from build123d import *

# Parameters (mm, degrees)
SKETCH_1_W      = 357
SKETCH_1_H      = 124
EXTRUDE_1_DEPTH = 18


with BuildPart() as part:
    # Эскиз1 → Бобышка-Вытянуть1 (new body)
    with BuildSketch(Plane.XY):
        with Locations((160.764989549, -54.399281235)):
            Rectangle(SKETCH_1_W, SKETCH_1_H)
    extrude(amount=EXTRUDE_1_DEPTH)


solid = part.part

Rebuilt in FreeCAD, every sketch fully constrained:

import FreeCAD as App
import Part
import Sketcher
Q = App.Units.Quantity


def add_polygon(sketch, points):
    """Adds a closed chain of lines whose ends are joined by coincident constraints."""
    first, n = sketch.GeometryCount, len(points)
    for a, b in zip(points, points[1:] + points[:1]):
        sketch.addGeometry(Part.LineSegment(App.Vector(*a, 0), App.Vector(*b, 0)), False)
    for i in range(n):
        sketch.addConstraint(Sketcher.Constraint("Coincident", first + i, 2, first + (i + 1) % n, 1))

doc = App.newDocument("Part")
params = doc.addObject("Spreadsheet::Sheet", "Params")
for row, (alias, value) in enumerate([
    ("sketch1_width", "357 mm"),
    ("sketch1_height", "124 mm"),
    ("pad1_length", "18 mm"),
], start=1):
    params.set(f"A{row}", alias)
    params.set(f"B{row}", "=" + value)
    params.setAlias(f"B{row}", alias)

body = doc.addObject("PartDesign::Body", "Body")

# Sketch on XY plane
sketch1 = doc.addObject("Sketcher::SketchObject", "Sketch")
body.addObject(sketch1)
sketch1.AttachmentSupport = (doc.XY_Plane, [""])
sketch1.MapMode = "FlatFace"
add_polygon(sketch1, [(-17.73501, 7.600719), (-17.73501, -116.399281), (339.26499, -116.399281), (339.26499, 7.600719)])  # lines 0-3
sketch1.addConstraint([
    Sketcher.Constraint("Vertical", 0),
    Sketcher.Constraint("Horizontal", 1),
    Sketcher.Constraint("Vertical", 2),
    Sketcher.Constraint("Horizontal", 3),
    Sketcher.Constraint("DistanceX", 1, 1, 1, 2, Q("357 mm")),
    Sketcher.Constraint("DistanceY", 0, 2, 0, 1, Q("124 mm")),
    Sketcher.Constraint("DistanceX", 0, 2, -1, 1, Q("17.73501 mm")),
    Sketcher.Constraint("DistanceY", 0, 2, -1, 1, Q("116.399281 mm")),
])
sketch1.setExpression("Constraints[8]", "Params.sketch1_width")
sketch1.setExpression("Constraints[9]", "Params.sketch1_height")
pad1 = doc.addObject("PartDesign::Pad", "Pad")
body.addObject(pad1)
pad1.Profile = sketch1
pad1.setExpression("Length", "Params.pad1_length")

doc.recompute()
